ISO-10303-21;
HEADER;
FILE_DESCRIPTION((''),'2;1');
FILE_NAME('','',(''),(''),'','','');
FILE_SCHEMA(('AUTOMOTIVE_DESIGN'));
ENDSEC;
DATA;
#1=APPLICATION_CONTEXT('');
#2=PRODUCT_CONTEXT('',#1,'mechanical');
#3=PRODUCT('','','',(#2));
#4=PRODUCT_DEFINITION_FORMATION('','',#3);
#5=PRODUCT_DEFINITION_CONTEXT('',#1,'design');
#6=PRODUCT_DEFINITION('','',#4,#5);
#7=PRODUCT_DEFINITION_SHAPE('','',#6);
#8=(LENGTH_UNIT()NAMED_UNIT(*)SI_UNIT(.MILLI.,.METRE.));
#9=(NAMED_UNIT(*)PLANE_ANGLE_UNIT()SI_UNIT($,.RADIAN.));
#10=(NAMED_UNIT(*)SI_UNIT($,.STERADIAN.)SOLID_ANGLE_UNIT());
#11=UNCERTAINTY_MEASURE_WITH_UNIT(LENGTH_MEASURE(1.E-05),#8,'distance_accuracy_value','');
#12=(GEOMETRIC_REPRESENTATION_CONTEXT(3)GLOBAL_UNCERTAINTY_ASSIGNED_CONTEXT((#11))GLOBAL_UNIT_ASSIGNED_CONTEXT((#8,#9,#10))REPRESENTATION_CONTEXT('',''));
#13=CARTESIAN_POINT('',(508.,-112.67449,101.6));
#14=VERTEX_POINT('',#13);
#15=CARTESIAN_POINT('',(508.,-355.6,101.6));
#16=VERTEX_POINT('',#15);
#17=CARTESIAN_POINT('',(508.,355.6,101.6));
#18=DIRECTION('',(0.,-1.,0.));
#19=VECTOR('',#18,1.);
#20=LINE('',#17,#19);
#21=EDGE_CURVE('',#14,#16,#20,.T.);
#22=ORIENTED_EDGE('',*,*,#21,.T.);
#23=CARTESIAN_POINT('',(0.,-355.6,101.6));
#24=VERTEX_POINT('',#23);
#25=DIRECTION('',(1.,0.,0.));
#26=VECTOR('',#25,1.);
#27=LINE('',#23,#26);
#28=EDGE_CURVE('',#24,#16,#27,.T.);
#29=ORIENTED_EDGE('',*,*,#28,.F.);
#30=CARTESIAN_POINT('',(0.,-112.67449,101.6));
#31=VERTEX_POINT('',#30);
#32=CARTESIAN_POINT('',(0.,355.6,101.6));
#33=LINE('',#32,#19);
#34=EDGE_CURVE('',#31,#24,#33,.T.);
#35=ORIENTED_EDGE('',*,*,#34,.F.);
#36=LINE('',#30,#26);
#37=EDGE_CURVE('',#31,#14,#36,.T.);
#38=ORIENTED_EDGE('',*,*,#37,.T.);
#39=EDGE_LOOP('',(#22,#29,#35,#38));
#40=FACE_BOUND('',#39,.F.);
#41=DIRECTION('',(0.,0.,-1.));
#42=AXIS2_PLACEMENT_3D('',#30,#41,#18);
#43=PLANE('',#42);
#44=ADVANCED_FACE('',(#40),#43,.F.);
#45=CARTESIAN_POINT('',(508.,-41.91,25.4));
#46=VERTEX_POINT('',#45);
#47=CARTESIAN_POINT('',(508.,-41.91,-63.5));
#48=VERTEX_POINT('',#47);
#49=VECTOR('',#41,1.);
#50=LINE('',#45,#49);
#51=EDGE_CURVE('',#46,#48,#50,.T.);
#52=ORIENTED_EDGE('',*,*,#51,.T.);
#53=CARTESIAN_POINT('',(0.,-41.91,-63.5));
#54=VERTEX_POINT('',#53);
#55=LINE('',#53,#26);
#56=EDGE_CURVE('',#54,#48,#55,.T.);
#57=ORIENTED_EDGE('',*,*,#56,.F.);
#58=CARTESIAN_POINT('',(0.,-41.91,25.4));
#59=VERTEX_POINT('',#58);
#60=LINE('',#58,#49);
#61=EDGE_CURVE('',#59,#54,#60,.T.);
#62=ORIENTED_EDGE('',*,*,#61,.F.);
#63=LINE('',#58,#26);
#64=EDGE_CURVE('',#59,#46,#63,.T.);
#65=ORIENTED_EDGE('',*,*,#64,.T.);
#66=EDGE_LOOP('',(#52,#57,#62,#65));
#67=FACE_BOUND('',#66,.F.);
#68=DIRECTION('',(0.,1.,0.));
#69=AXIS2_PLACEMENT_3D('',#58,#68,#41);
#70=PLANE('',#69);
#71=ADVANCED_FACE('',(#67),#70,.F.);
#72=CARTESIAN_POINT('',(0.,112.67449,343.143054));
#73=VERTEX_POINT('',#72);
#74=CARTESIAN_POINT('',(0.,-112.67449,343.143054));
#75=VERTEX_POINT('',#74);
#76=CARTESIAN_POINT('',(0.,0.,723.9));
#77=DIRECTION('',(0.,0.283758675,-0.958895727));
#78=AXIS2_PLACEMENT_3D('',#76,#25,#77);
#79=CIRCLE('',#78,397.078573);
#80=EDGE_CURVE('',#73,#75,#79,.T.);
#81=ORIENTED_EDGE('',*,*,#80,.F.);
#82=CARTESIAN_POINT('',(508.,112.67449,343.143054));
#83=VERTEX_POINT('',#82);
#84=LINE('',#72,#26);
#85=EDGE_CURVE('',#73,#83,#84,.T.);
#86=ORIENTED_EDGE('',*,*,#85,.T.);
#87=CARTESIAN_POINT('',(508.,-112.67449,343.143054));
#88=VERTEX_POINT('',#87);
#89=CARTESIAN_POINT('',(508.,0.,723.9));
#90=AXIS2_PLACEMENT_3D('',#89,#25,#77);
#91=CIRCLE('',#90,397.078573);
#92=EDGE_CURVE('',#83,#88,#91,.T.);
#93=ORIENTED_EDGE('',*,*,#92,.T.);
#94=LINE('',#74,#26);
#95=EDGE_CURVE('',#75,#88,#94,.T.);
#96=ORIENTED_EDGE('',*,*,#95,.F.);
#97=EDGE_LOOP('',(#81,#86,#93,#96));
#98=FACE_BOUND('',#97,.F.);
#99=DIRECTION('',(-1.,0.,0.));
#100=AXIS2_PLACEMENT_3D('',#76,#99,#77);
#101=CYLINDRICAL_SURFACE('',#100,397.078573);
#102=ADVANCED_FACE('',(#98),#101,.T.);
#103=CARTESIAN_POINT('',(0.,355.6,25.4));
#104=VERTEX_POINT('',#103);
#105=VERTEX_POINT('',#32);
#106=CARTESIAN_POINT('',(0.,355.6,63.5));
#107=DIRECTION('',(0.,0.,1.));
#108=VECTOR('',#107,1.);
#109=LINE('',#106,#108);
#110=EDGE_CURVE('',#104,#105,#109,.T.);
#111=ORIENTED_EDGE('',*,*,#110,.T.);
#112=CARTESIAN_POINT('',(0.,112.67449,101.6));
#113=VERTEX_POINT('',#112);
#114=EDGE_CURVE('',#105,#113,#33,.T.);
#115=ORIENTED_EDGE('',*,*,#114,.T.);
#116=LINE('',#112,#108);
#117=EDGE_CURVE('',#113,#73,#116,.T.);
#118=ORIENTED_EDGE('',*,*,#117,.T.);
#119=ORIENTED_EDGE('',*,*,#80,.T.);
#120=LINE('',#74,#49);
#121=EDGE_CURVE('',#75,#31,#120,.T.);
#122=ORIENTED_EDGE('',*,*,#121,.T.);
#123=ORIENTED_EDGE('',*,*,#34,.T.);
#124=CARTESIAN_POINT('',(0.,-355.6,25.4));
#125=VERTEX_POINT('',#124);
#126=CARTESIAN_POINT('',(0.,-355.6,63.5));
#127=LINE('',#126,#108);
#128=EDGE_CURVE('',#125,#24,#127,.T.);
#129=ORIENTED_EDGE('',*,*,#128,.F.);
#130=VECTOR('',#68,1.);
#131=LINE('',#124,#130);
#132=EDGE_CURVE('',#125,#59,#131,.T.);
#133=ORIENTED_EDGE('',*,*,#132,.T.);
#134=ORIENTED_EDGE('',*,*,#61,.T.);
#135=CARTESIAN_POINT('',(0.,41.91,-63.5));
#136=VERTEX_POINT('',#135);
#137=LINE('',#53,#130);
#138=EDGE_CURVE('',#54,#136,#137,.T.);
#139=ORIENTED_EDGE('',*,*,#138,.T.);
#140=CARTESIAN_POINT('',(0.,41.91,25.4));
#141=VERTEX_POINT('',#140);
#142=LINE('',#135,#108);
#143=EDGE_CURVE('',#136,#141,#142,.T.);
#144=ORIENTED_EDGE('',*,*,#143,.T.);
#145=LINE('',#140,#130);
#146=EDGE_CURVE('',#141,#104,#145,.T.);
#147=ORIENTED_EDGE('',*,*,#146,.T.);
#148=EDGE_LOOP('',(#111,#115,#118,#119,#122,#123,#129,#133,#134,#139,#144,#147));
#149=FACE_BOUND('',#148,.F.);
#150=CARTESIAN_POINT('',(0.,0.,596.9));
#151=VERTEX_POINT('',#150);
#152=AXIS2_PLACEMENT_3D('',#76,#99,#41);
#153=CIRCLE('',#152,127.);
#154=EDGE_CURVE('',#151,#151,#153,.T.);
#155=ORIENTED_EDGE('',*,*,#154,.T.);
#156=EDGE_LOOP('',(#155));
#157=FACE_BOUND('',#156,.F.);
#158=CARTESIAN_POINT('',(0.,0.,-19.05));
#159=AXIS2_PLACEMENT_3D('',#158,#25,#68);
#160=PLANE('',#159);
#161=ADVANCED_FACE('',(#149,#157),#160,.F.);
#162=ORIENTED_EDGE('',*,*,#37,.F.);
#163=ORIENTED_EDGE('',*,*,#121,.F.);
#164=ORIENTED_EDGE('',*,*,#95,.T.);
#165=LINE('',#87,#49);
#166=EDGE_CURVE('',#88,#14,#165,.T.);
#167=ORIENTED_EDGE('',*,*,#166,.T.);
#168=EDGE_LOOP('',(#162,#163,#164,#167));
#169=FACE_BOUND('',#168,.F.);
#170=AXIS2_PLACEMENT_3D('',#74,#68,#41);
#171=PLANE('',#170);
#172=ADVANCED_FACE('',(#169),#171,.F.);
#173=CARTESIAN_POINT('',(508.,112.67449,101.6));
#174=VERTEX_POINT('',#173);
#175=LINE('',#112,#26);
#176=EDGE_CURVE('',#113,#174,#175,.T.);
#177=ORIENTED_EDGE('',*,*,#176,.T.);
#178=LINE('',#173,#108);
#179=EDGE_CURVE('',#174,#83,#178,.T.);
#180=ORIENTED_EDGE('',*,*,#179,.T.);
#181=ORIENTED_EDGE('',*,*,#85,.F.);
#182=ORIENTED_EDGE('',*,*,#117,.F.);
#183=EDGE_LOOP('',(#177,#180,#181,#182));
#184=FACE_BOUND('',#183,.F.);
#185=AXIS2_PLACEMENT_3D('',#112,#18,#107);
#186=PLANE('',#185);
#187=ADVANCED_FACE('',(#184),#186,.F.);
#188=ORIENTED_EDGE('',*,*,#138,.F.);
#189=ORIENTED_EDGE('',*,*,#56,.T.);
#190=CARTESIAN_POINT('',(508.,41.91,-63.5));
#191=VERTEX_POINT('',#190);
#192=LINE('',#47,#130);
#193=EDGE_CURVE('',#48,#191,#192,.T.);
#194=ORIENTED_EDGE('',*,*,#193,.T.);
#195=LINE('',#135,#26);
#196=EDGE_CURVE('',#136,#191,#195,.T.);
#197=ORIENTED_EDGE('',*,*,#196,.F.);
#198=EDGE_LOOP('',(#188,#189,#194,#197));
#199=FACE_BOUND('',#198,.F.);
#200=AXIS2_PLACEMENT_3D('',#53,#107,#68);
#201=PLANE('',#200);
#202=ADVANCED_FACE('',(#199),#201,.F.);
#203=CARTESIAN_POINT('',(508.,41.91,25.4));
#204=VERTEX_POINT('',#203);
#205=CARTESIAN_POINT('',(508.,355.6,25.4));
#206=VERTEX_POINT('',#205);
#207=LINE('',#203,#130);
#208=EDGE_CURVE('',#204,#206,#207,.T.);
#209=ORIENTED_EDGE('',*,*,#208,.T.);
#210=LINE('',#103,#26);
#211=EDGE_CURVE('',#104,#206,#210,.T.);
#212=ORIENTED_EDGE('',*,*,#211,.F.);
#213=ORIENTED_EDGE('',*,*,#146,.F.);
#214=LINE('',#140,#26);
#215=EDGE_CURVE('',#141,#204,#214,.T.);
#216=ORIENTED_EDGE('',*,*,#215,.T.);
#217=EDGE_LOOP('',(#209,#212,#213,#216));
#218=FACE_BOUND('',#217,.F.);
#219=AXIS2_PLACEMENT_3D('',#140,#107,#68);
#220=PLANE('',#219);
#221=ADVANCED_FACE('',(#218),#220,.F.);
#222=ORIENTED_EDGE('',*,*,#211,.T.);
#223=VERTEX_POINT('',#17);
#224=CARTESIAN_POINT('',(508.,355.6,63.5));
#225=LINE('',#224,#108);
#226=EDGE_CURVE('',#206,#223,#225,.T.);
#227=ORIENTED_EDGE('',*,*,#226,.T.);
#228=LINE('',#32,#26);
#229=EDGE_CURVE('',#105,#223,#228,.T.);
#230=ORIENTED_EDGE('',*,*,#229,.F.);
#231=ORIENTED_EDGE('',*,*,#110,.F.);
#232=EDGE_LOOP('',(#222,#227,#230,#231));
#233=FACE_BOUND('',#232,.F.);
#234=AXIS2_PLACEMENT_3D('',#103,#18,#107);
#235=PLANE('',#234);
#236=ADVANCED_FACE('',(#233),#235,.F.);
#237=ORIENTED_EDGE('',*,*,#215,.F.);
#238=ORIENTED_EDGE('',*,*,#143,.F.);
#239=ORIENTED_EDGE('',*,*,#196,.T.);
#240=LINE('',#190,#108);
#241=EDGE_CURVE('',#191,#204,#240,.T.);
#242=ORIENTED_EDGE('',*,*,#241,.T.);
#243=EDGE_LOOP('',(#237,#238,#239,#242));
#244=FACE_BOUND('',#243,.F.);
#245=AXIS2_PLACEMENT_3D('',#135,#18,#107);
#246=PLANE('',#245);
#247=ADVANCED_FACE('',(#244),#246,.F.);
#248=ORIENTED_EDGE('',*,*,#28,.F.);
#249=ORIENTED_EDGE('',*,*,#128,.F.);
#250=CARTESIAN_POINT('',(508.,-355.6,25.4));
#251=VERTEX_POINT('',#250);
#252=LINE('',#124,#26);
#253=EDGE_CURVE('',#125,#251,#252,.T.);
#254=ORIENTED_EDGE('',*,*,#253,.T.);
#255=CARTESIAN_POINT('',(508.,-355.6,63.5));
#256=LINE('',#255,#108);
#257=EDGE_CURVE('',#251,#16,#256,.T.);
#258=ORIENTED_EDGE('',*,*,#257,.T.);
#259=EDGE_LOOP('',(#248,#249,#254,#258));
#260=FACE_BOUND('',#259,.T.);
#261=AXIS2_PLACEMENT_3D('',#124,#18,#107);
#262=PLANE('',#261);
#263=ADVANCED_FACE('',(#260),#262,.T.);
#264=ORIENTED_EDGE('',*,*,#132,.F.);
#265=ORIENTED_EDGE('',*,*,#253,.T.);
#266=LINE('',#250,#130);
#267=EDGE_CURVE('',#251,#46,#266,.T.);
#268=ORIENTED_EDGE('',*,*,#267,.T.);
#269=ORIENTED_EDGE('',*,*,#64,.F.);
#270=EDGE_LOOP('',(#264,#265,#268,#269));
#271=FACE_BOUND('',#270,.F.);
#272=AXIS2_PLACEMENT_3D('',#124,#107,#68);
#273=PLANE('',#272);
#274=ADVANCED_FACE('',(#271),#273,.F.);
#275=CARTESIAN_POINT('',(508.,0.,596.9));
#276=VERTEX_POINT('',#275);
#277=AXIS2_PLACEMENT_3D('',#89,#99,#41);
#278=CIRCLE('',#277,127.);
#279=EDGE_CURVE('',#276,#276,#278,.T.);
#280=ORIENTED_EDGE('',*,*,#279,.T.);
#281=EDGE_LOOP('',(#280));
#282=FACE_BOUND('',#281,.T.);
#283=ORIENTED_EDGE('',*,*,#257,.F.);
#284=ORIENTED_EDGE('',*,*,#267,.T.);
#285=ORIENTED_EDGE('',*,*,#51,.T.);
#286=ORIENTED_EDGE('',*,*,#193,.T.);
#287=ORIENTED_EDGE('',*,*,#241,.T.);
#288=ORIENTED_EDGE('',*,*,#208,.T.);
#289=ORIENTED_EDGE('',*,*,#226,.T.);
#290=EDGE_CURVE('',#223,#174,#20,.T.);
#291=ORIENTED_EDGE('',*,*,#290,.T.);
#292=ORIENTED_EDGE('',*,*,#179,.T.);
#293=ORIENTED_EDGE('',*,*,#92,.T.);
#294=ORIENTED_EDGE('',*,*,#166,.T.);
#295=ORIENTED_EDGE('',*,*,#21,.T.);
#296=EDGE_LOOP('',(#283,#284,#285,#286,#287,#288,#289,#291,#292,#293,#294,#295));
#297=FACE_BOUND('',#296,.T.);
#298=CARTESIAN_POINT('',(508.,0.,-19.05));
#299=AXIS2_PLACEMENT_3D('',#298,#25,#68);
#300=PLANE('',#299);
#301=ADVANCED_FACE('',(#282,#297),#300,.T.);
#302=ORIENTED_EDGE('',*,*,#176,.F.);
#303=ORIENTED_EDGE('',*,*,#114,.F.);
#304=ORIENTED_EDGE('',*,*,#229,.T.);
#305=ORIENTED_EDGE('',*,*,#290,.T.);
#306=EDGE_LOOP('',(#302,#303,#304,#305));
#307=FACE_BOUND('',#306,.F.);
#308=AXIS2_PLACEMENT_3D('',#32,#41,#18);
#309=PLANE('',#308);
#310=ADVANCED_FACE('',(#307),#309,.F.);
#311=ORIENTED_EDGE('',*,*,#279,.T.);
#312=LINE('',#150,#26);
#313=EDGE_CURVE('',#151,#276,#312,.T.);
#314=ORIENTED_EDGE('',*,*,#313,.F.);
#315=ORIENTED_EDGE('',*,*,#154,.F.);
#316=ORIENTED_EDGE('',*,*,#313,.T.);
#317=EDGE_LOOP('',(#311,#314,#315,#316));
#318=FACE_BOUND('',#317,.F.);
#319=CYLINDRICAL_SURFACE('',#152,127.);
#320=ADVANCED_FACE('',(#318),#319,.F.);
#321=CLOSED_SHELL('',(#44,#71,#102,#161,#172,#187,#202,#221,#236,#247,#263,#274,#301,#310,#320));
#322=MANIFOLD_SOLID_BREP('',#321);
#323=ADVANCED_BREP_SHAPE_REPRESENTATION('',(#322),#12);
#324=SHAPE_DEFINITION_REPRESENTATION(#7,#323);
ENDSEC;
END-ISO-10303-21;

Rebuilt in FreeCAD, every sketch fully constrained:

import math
import FreeCAD as App
import Part
import Sketcher

V = App.Vector
Q = App.Units.Quantity

doc = App.newDocument("Part")
params = doc.addObject("Spreadsheet::Sheet", "Params")
for row, (alias, value) in enumerate([
    ("sketch1_diameter", "10 in"),
    ("sketch1_height", "3 in"),
    ("sketch1_width", "3.3 in"),
    ("sketch1_height2", "3.5 in"),
    ("pad1_length", "20 in"),
], start=1):
    params.set(f"A{row}", alias)
    params.set(f"B{row}", "=" + value)
    params.setAlias(f"B{row}", alias)

body = doc.addObject("PartDesign::Body", "Body")

# Sketch on YZ plane
sketch1 = body.newObject("Sketcher::SketchObject", "Sketch")
sketch1.AttachmentSupport = (doc.getObject("YZ_Plane"), [""])
sketch1.MapMode = "FlatFace"
sketch1.addGeometry([
    Part.ArcOfCircle(Part.Circle(V(0, 724, 0), V(0, 0, 1), 397), math.radians(-74), math.radians(254)),  # 0
    Part.LineSegment(V(-113, 343, 0), V(-113, 102, 0)),  # 1
    Part.LineSegment(V(-113, 102, 0), V(-356, 102, 0)),  # 2
    Part.LineSegment(V(-356, 102, 0), V(-356, 25, 0)),  # 3
    Part.LineSegment(V(-356, 25, 0), V(-42, 25, 0)),  # 4
    Part.LineSegment(V(-42, 25, 0), V(-42, -64, 0)),  # 5
    Part.LineSegment(V(-42, -64, 0), V(42, -64, 0)),  # 6
    Part.LineSegment(V(42, -64, 0), V(42, 25, 0)),  # 7
    Part.LineSegment(V(42, 25, 0), V(356, 25, 0)),  # 8
    Part.LineSegment(V(356, 25, 0), V(356, 102, 0)),  # 9
    Part.LineSegment(V(356, 102, 0), V(113, 102, 0)),  # 10
    Part.LineSegment(V(113, 102, 0), V(113, 343, 0)),  # 11
    Part.Circle(V(0, 724, 0), V(0, 0, 1), 127),  # 12
], False)
sketch1.addConstraint([
    Sketcher.Constraint("Coincident", 0, 2, 1, 1),
    Sketcher.Constraint("Coincident", 1, 2, 2, 1),
    Sketcher.Constraint("Coincident", 2, 2, 3, 1),
    Sketcher.Constraint("Coincident", 3, 2, 4, 1),
    Sketcher.Constraint("Coincident", 4, 2, 5, 1),
    Sketcher.Constraint("Coincident", 5, 2, 6, 1),
    Sketcher.Constraint("Coincident", 6, 2, 7, 1),
    Sketcher.Constraint("Coincident", 7, 2, 8, 1),
    Sketcher.Constraint("Coincident", 8, 2, 9, 1),
    Sketcher.Constraint("Coincident", 9, 2, 10, 1),
    Sketcher.Constraint("Coincident", 10, 2, 11, 1),
    Sketcher.Constraint("Coincident", 11, 2, 0, 1),
    Sketcher.Constraint("Vertical", 1),
    Sketcher.Constraint("Horizontal", 2),
    Sketcher.Constraint("Vertical", 3),
    Sketcher.Constraint("Horizontal", 4),
    Sketcher.Constraint("Vertical", 5),
    Sketcher.Constraint("Horizontal", 6),
    Sketcher.Constraint("Vertical", 7),
    Sketcher.Constraint("Horizontal", 8),
    Sketcher.Constraint("Vertical", 9),
    Sketcher.Constraint("Horizontal", 10),
    Sketcher.Constraint("Vertical", 11),
    Sketcher.Constraint("Coincident", 12, 3, 0, 3),
    Sketcher.Constraint("Symmetric", 4, 2, 7, 2, -2),
    Sketcher.Constraint("Symmetric", 2, 2, 9, 2, -2),
    Sketcher.Constraint("Symmetric", 0, 2, 11, 2, -2),
    Sketcher.Constraint("Diameter", 12, Q("10 in")),
    Sketcher.Constraint("DistanceY", 3, 2, 3, 1, Q("3 in")),
    Sketcher.Constraint("DistanceX", 6, 1, 6, 2, Q("3.3 in")),
    Sketcher.Constraint("DistanceY", 5, 2, 5, 1, Q("3.5 in")),
    Sketcher.Constraint("DistanceY", -1, 1, 1, 2, Q("4 in")),
    Sketcher.Constraint("DistanceX", 2, 2, -1, 1, Q("14 in")),
    Sketcher.Constraint("DistanceY", -1, 1, 0, 3, Q("28.5 in")),
    Sketcher.Constraint("Radius", 0, Q("397.078573 mm")),
    Sketcher.Constraint("DistanceX", 2, 2, 2, 1, Q("242.92551 mm")),
])
sketch1.setExpression("Constraints[27]", "Params.sketch1_diameter")
sketch1.setExpression("Constraints[28]", "Params.sketch1_height")
sketch1.setExpression("Constraints[29]", "Params.sketch1_width")
sketch1.setExpression("Constraints[30]", "Params.sketch1_height2")
pad1 = body.newObject("PartDesign::Pad", "Pad")
pad1.Profile = sketch1
pad1.setExpression("Length", "Params.pad1_length")

doc.recompute()
